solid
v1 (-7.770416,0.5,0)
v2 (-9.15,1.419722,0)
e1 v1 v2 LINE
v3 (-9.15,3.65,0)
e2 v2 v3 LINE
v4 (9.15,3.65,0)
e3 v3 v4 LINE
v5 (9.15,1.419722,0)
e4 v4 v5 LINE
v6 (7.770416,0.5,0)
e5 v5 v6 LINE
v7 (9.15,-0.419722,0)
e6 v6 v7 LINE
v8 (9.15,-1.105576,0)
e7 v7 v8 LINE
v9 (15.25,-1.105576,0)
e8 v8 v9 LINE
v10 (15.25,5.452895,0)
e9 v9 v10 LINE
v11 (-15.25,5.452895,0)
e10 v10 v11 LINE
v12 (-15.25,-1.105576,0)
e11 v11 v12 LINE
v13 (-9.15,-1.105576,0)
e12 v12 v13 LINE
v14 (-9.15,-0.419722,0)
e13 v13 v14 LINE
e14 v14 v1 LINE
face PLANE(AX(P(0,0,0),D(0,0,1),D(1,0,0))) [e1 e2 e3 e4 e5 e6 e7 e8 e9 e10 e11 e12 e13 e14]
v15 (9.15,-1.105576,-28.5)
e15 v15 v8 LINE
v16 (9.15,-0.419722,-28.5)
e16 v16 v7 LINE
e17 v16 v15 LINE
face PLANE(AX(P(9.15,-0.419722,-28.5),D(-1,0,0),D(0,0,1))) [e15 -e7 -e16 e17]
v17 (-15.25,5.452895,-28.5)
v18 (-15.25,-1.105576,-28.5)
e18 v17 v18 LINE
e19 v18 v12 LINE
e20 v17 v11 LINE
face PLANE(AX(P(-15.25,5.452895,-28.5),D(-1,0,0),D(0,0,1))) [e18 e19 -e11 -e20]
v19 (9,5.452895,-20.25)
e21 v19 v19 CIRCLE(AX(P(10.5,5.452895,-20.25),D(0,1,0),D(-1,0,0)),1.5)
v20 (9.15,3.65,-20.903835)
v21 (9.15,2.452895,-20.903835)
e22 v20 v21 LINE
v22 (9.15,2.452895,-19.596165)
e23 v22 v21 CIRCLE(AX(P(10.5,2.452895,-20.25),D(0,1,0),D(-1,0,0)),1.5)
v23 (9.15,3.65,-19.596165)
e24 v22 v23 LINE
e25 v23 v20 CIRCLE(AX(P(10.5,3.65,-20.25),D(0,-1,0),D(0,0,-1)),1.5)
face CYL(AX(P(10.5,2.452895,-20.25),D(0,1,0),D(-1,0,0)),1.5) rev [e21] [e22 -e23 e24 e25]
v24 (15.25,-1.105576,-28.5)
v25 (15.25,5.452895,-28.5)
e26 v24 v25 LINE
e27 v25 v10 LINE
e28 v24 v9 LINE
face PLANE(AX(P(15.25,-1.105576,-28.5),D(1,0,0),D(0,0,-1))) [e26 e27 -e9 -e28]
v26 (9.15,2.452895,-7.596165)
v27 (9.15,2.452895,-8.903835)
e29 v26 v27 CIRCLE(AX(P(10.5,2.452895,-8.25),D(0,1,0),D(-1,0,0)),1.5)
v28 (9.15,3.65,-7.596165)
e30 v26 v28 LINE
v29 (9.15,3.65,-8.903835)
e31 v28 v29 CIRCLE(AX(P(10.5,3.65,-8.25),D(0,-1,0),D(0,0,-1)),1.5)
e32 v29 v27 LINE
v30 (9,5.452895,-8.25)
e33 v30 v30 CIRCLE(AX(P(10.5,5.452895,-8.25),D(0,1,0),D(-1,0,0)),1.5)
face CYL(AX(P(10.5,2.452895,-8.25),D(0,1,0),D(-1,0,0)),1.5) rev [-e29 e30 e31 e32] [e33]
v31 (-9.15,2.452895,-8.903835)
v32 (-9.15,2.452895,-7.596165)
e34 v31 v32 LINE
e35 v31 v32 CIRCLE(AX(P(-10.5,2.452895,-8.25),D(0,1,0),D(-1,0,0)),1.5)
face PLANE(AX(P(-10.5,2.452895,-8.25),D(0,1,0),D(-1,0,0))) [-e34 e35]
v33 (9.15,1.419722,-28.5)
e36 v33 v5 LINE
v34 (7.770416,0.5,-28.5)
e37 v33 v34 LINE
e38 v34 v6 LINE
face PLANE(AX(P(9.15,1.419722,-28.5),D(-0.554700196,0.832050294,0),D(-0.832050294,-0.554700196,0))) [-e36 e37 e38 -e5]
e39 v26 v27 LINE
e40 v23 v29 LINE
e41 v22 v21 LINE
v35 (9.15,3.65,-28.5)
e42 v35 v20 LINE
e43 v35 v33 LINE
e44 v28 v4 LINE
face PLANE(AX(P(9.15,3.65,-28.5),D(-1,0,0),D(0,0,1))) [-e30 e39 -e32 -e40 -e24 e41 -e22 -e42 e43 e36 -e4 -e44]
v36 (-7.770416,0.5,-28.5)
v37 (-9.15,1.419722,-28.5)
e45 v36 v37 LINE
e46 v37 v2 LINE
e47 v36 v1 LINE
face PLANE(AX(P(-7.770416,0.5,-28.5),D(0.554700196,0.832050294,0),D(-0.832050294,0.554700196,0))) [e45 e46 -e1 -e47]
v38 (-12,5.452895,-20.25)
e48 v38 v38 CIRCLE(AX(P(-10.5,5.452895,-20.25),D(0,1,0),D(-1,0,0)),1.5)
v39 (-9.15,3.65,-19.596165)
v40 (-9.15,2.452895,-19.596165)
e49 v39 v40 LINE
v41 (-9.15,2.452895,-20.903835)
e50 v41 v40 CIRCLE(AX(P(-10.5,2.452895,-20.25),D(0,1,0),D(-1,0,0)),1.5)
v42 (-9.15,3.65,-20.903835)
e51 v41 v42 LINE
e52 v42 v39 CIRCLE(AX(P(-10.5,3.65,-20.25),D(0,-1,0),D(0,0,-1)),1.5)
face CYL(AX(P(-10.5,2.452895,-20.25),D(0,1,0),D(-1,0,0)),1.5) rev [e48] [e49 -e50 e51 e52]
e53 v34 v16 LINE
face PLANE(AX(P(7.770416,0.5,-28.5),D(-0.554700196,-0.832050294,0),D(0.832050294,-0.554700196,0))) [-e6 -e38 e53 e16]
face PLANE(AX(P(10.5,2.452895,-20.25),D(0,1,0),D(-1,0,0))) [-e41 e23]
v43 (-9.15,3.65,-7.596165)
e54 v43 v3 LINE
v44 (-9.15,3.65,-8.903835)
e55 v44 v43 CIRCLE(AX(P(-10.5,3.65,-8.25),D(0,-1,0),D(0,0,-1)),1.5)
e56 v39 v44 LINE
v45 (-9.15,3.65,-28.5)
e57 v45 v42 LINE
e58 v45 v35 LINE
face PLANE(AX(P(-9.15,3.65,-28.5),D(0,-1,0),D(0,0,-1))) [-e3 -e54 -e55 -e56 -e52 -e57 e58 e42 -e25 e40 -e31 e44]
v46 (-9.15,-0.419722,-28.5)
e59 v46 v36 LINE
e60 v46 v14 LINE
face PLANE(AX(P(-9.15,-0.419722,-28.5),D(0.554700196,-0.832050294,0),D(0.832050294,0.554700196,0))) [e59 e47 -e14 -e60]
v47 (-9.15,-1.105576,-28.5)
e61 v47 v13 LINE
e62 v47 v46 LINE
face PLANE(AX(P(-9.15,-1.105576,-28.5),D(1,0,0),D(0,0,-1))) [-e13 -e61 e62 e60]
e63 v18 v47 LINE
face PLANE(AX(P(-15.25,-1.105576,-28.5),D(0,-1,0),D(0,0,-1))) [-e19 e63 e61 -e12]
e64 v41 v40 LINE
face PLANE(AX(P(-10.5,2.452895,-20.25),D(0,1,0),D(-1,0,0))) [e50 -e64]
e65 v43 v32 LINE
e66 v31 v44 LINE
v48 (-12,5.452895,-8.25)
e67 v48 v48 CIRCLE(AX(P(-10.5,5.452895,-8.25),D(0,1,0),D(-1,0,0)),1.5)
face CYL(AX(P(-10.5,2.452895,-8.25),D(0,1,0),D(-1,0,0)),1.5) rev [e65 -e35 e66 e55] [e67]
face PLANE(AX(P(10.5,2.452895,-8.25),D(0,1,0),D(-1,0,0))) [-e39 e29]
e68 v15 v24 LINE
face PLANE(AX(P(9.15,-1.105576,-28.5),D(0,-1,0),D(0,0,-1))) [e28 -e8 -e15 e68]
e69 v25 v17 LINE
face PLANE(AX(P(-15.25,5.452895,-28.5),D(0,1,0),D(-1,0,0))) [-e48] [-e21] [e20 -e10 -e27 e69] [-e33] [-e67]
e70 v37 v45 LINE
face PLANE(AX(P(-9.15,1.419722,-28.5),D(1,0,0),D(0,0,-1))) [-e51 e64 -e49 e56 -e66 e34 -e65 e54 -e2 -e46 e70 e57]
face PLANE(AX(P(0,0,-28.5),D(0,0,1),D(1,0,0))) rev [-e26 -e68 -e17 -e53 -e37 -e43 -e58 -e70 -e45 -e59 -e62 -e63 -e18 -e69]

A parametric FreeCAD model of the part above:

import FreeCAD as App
import Part
import Sketcher

V = App.Vector
Q = App.Units.Quantity

doc = App.newDocument("Part")
body = doc.addObject("PartDesign::Body", "Body")

sketch1 = body.newObject("Sketcher::SketchObject", "Sketch")
sketch1.AttachmentSupport = (doc.getObject("XY_Plane"), [""])
sketch1.MapMode = "FlatFace"
sketch1.addGeometry(Part.LineSegment(V(-9.15, -1.105576, 0), V(-9.15, -0.419722, 0)), False)
sketch1.addGeometry(Part.LineSegment(V(-9.15, -0.419722, 0), V(-7.770416, 0.5, 0)), False)
sketch1.addGeometry(Part.LineSegment(V(-7.770416, 0.5, 0), V(-9.15, 1.419722, 0)), False)
sketch1.addGeometry(Part.LineSegment(V(-9.15, 1.419722, 0), V(-9.15, 3.65, 0)), False)
sketch1.addGeometry(Part.LineSegment(V(-9.15, 3.65, 0), V(9.15, 3.65, 0)), False)
sketch1.addGeometry(Part.LineSegment(V(9.15, 3.65, 0), V(9.15, 1.419722, 0)), False)
sketch1.addGeometry(Part.LineSegment(V(9.15, 1.419722, 0), V(7.770416, 0.5, 0)), False)
sketch1.addGeometry(Part.LineSegment(V(7.770416, 0.5, 0), V(9.15, -0.419722, 0)), False)
sketch1.addGeometry(Part.LineSegment(V(9.15, -0.419722, 0), V(9.15, -1.105576, 0)), False)
sketch1.addGeometry(Part.LineSegment(V(9.15, -1.105576, 0), V(15.25, -1.105576, 0)), False)
sketch1.addGeometry(Part.LineSegment(V(15.25, -1.105576, 0), V(15.25, 5.452895, 0)), False)
sketch1.addGeometry(Part.LineSegment(V(15.25, 5.452895, 0), V(-15.25, 5.452895, 0)), False)
sketch1.addGeometry(Part.LineSegment(V(-15.25, 5.452895, 0), V(-15.25, -1.105576, 0)), False)
sketch1.addGeometry(Part.LineSegment(V(-15.25, -1.105576, 0), V(-9.15, -1.105576, 0)), False)
sketch1.addConstraint(Sketcher.Constraint("Coincident", 0, 2, 1, 1))
sketch1.addConstraint(Sketcher.Constraint("Coincident", 1, 2, 2, 1))
sketch1.addConstraint(Sketcher.Constraint("Coincident", 2, 2, 3, 1))
sketch1.addConstraint(Sketcher.Constraint("Coincident", 3, 2, 4, 1))
sketch1.addConstraint(Sketcher.Constraint("Coincident", 4, 2, 5, 1))
sketch1.addConstraint(Sketcher.Constraint("Coincident", 5, 2, 6, 1))
sketch1.addConstraint(Sketcher.Constraint("Coincident", 6, 2, 7, 1))
sketch1.addConstraint(Sketcher.Constraint("Coincident", 7, 2, 8, 1))
sketch1.addConstraint(Sketcher.Constraint("Coincident", 8, 2, 9, 1))
sketch1.addConstraint(Sketcher.Constraint("Coincident", 9, 2, 10, 1))
sketch1.addConstraint(Sketcher.Constraint("Coincident", 10, 2, 11, 1))
sketch1.addConstraint(Sketcher.Constraint("Coincident", 11, 2, 12, 1))
sketch1.addConstraint(Sketcher.Constraint("Coincident", 12, 2, 13, 1))
sketch1.addConstraint(Sketcher.Constraint("Coincident", 13, 2, 0, 1))
sketch1.addConstraint(Sketcher.Constraint("Vertical", 0))
sketch1.addConstraint(Sketcher.Constraint("Vertical", 3))
sketch1.addConstraint(Sketcher.Constraint("Horizontal", 4))
sketch1.addConstraint(Sketcher.Constraint("Vertical", 5))
sketch1.addConstraint(Sketcher.Constraint("Vertical", 8))
sketch1.addConstraint(Sketcher.Constraint("Horizontal", 9))
sketch1.addConstraint(Sketcher.Constraint("Vertical", 10))
sketch1.addConstraint(Sketcher.Constraint("Horizontal", 11))
sketch1.addConstraint(Sketcher.Constraint("Vertical", 12))
sketch1.addConstraint(Sketcher.Constraint("Horizontal", 13))
sketch1.addConstraint(Sketcher.Constraint("Symmetric", 2, 2, 5, 2, -2))
sketch1.addConstraint(Sketcher.Constraint("Symmetric", 1, 2, 6, 2, -2))
sketch1.addConstraint(Sketcher.Constraint("Symmetric", 0, 2, 7, 2, -2))
sketch1.addConstraint(Sketcher.Constraint("Symmetric", 9, 2, 12, 2, -2))
sketch1.addConstraint(Sketcher.Constraint("Parallel", 1, 6))
sketch1.addConstraint(Sketcher.Constraint("Vertical", 0, 2, 2, 2))
sketch1.addConstraint(Sketcher.Constraint("DistanceX", 4, 1, 4, 2, Q("18.3 mm")))
sketch1.addConstraint(Sketcher.Constraint("DistanceX", 9, 1, 9, 2, Q("6.1 mm")))
sketch1.addConstraint(Sketcher.Constraint("DistanceY", -1, 1, 1, 2, Q("0.5 mm")))
sketch1.addConstraint(Sketcher.Constraint("DistanceY", -1, 1, 3, 2, Q("3.65 mm")))
sketch1.addConstraint(Sketcher.Constraint("DistanceY", 10, 1, 10, 2, Q("6.558471 mm")))
sketch1.addConstraint(Sketcher.Constraint("DistanceY", 8, 2, 5, 2, Q("2.525299 mm")))
sketch1.addConstraint(Sketcher.Constraint("DistanceY", 0, 1, 0, 2, Q("0.685854 mm")))
sketch1.addConstraint(Sketcher.Constraint("Distance", 1, Q("1.658053 mm")))
pad1 = body.newObject("PartDesign::Pad", "Pad")
pad1.Profile = sketch1
pad1.Length = 28.5
pad1.Reversed = True

sketch2 = body.newObject("Sketcher::SketchObject", "Sketch001")
sketch2.AttachmentSupport = (doc.getObject("XZ_Plane"), [""])
sketch2.MapMode = "FlatFace"
sketch2.AttachmentOffset = App.Placement(V(0, 0, -5.452895), App.Rotation())
sketch2.addGeometry(Part.Circle(V(-10.5, -8.25, 0), V(0, 0, 1), 1.5), False)
sketch2.addGeometry(Part.Circle(V(-10.5, -20.25, 0), V(0, 0, 1), 1.5), False)
sketch2.addGeometry(Part.Circle(V(10.5, -20.25, 0), V(0, 0, 1), 1.5), False)
sketch2.addGeometry(Part.Circle(V(10.5, -8.25, 0), V(0, 0, 1), 1.5), False)
sketch2.addConstraint(Sketcher.Constraint("Equal", 0, 1))
sketch2.addConstraint(Sketcher.Constraint("Equal", 1, 2))
sketch2.addConstraint(Sketcher.Constraint("Equal", 2, 3))
sketch2.addConstraint(Sketcher.Constraint("Symmetric", 1, 3, 2, 3, -2))
sketch2.addConstraint(Sketcher.Constraint("Symmetric", 0, 3, 3, 3, -2))
sketch2.addConstraint(Sketcher.Constraint("Vertical", 0, 3, 1, 3))
sketch2.addConstraint(Sketcher.Constraint("Diameter", 0, Q("3 mm")))
sketch2.addConstraint(Sketcher.Constraint("DistanceY", 1, 3, 0, 3, Q("12 mm")))
sketch2.addConstraint(Sketcher.Constraint("DistanceX", 1, 3, 2, 3, Q("21 mm")))
sketch2.addConstraint(Sketcher.Constraint("DistanceY", 0, 3, -1, 1, Q("8.25 mm")))
pocket1 = body.newObject("PartDesign::Pocket", "Pocket")
pocket1.Profile = sketch2
pocket1.Length = 3
pocket1.Reversed = True

doc.recompute()
